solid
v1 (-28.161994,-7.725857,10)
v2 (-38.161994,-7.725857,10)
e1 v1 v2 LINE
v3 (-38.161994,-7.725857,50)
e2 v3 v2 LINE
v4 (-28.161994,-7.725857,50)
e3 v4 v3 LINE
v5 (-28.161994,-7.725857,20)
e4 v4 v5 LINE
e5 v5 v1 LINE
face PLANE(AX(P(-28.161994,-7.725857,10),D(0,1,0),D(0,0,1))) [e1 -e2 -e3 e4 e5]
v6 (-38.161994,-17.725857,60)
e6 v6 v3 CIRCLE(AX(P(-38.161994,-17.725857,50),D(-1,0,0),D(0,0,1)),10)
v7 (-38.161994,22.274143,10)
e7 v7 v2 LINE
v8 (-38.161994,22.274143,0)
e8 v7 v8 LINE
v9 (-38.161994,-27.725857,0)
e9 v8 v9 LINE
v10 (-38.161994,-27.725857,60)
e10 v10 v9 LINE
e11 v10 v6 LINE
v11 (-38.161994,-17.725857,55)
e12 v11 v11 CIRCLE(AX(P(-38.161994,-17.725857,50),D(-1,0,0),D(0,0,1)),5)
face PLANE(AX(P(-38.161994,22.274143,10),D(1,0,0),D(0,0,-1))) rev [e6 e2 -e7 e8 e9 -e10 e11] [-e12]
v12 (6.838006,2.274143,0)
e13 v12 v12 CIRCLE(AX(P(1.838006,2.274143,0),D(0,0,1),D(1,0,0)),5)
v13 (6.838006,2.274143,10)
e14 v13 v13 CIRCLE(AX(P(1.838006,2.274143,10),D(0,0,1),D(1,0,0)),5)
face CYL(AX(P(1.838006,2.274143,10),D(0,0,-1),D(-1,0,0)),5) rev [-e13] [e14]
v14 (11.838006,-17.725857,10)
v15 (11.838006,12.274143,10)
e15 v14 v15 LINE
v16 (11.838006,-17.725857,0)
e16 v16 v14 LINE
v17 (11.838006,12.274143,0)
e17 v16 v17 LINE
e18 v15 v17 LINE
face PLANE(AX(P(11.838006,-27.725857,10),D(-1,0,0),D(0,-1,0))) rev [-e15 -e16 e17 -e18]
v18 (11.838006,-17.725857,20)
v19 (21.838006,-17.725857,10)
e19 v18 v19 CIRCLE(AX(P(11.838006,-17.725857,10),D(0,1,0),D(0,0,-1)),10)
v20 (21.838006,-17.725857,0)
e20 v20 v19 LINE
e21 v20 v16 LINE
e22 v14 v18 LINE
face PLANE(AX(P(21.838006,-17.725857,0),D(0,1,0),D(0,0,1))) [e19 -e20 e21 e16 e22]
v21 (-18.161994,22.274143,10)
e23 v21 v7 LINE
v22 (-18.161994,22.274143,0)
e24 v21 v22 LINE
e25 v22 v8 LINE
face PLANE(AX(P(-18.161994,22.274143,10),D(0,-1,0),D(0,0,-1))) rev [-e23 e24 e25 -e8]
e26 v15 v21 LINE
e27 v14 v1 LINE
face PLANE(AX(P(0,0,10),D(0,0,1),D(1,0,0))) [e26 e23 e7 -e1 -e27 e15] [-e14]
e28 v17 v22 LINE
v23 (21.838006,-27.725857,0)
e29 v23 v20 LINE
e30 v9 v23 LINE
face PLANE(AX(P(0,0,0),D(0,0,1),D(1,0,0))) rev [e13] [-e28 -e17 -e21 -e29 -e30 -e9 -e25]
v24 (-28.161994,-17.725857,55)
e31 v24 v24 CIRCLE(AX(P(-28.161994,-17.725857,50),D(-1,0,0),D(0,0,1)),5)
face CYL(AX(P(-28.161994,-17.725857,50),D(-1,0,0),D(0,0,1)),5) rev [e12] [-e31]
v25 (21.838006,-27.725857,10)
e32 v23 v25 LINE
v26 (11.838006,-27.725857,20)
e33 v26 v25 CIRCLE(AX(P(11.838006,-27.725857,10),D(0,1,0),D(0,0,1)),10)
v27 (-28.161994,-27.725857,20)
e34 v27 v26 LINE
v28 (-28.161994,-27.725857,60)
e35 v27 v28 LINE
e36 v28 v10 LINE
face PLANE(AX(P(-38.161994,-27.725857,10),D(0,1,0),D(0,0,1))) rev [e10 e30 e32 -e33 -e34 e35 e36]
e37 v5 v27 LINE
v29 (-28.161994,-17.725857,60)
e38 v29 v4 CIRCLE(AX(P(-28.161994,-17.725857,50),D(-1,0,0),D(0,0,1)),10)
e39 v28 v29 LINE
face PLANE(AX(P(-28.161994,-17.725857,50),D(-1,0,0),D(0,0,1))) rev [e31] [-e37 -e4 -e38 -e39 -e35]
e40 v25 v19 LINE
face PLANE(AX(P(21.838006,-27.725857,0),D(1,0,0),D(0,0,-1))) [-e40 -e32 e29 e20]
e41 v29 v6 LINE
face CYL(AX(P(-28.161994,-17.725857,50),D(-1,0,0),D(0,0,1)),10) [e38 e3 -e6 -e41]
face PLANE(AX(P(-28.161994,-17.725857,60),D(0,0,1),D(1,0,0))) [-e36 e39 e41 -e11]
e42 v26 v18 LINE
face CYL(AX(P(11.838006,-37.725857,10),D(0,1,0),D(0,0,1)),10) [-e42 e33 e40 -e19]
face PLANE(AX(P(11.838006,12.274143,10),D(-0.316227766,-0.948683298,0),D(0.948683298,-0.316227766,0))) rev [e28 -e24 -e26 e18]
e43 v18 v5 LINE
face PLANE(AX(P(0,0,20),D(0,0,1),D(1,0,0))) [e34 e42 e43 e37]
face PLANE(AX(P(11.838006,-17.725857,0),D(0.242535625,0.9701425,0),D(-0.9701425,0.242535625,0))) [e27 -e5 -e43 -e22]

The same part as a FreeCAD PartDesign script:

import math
import FreeCAD as App
import Part
import Sketcher
from FreeCAD import Vector


def add_polygon(sketch, points):
    """Adds a closed chain of lines whose ends are joined by coincident constraints."""
    first, n = sketch.GeometryCount, len(points)
    for a, b in zip(points, points[1:] + points[:1]):
        sketch.addGeometry(Part.LineSegment(App.Vector(*a, 0), App.Vector(*b, 0)), False)
    for i in range(n):
        sketch.addConstraint(Sketcher.Constraint("Coincident", first + i, 2, first + (i + 1) % n, 1))

doc = App.newDocument("Part")
params = doc.addObject("Spreadsheet::Sheet", "Params")
for row, (alias, value) in enumerate([
    ("sketch1_diameter", "10 mm"),
    ("sketch1_width", "50 mm"),
    ("sketch1_width2", "20 mm"),
    ("sketch1_height", "40 mm"),
    ("pad1_length", "10 mm"),
    ("sketch2_diameter", "10 mm"),
    ("sketch2_radius", "10 mm"),
    ("sketch2_width", "20 mm"),
    ("sketch2_height", "40 mm"),
    ("pad2_length", "10 mm"),
    ("sketch3_width", "50 mm"),
    ("sketch3_width2", "10 mm"),
    ("sketch3_height", "20 mm"),
    ("pad3_length", "20 mm"),
    ("sketch4_radius", "10 mm"),
    ("sketch4_height", "10 mm"),
    ("pocket1_length", "20 mm"),
], start=1):
    params.set(f"A{row}", alias)
    params.set(f"B{row}", "=" + value)
    params.setAlias(f"B{row}", alias)

body = doc.addObject("PartDesign::Body", "Body")

# Sketch on XY plane
sketch1 = doc.addObject("Sketcher::SketchObject", "Sketch")
body.addObject(sketch1)
sketch1.AttachmentSupport = (doc.XY_Plane, [""])
sketch1.MapMode = "FlatFace"
add_polygon(sketch1, [(-38, 22), (-38, -28), (12, -28), (12, 12), (-18, 22)])  # lines 0-4
sketch1.addGeometry(Part.Circle(Vector(2, 2, 0), Vector(0, 0, 1), 5), False)  # 5
sketch1.addConstraint(Sketcher.Constraint("Vertical", 0))
sketch1.addConstraint(Sketcher.Constraint("Horizontal", 1))
sketch1.addConstraint(Sketcher.Constraint("Vertical", 2))
sketch1.addConstraint(Sketcher.Constraint("Horizontal", 4))
sketch1.addConstraint(Sketcher.Constraint("Equal", 1, 0))
sketch1.addConstraint(Sketcher.Constraint("Diameter", 5, 10.0))
sketch1.addConstraint(Sketcher.Constraint("DistanceX", 1, 1, 1, 2, 50.0))
sketch1.addConstraint(Sketcher.Constraint("DistanceX", 4, 2, 4, 1, 20.0))
sketch1.addConstraint(Sketcher.Constraint("DistanceY", 2, 1, 2, 2, 40.0))
sketch1.addConstraint(Sketcher.Constraint("DistanceX", 0, 2, 5, 3, 40.0))
sketch1.addConstraint(Sketcher.Constraint("DistanceY", 0, 2, 5, 3, 30.0))
sketch1.addConstraint(Sketcher.Constraint("DistanceX", -1, 1, 5, 3, 1.838006))
sketch1.addConstraint(Sketcher.Constraint("DistanceY", -1, 1, 5, 3, 2.274143))
sketch1.setExpression("Constraints[10]", "Params.sketch1_diameter")
sketch1.setExpression("Constraints[11]", "Params.sketch1_width")
sketch1.setExpression("Constraints[12]", "Params.sketch1_width2")
sketch1.setExpression("Constraints[13]", "Params.sketch1_height")
pad1 = doc.addObject("PartDesign::Pad", "Pad")
body.addObject(pad1)
pad1.Profile = sketch1
pad1.setExpression("Length", "Params.pad1_length")

# Sketch on YZ plane
sketch2 = doc.addObject("Sketcher::SketchObject", "Sketch001")
body.addObject(sketch2)
sketch2.AttachmentSupport = (doc.YZ_Plane, [""])
sketch2.MapMode = "FlatFace"
sketch2.AttachmentOffset = App.Placement(Vector(0, 0, -38.161994), App.Rotation())
sketch2.addGeometry(Part.LineSegment(Vector(-8, 50, 0), Vector(-8, 10, 0)), False)
sketch2.addGeometry(Part.LineSegment(Vector(-8, 10, 0), Vector(-28, 10, 0)), False)
sketch2.addGeometry(Part.LineSegment(Vector(-28, 10, 0), Vector(-28, 60, 0)), False)
sketch2.addGeometry(Part.LineSegment(Vector(-28, 60, 0), Vector(-18, 60, 0)), False)
sketch2.addGeometry(Part.ArcOfCircle(Part.Circle(Vector(-18, 50, 0), Vector(0, 0, 1), 10), math.radians(0), math.radians(90)), False)
sketch2.addGeometry(Part.Circle(Vector(-18, 50, 0), Vector(0, 0, 1), 5), False)
sketch2.addConstraint(Sketcher.Constraint("Coincident", 0, 2, 1, 1))
sketch2.addConstraint(Sketcher.Constraint("Coincident", 1, 2, 2, 1))
sketch2.addConstraint(Sketcher.Constraint("Coincident", 2, 2, 3, 1))
sketch2.addConstraint(Sketcher.Constraint("Tangent", 3, 2, 4, 2))
sketch2.addConstraint(Sketcher.Constraint("Tangent", 4, 1, 0, 1))
sketch2.addConstraint(Sketcher.Constraint("Vertical", 0))
sketch2.addConstraint(Sketcher.Constraint("Horizontal", 1))
sketch2.addConstraint(Sketcher.Constraint("Vertical", 2))
sketch2.addConstraint(Sketcher.Constraint("Horizontal", 3))
sketch2.addConstraint(Sketcher.Constraint("Coincident", 5, 3, 4, 3))
sketch2.addConstraint(Sketcher.Constraint("Diameter", 5, 10.0))
sketch2.addConstraint(Sketcher.Constraint("Radius", 4, 10.0))
sketch2.addConstraint(Sketcher.Constraint("DistanceX", 1, 2, 1, 1, 20.0))
sketch2.addConstraint(Sketcher.Constraint("DistanceY", 0, 2, 0, 1, 40.0))
sketch2.addConstraint(Sketcher.Constraint("DistanceY", -1, 1, 4, 3, 50.0))
sketch2.addConstraint(Sketcher.Constraint("DistanceX", 4, 3, -1, 1, 17.725857))
sketch2.setExpression("Constraints[10]", "Params.sketch2_diameter")
sketch2.setExpression("Constraints[11]", "Params.sketch2_radius")
sketch2.setExpression("Constraints[12]", "Params.sketch2_width")
sketch2.setExpression("Constraints[13]", "Params.sketch2_height")
pad2 = doc.addObject("PartDesign::Pad", "Pad001")
body.addObject(pad2)
pad2.Profile = sketch2
pad2.setExpression("Length", "Params.pad2_length")

# Sketch on XY plane
sketch3 = doc.addObject("Sketcher::SketchObject", "Sketch002")
body.addObject(sketch3)
sketch3.AttachmentSupport = (doc.XY_Plane, [""])
sketch3.MapMode = "FlatFace"
sketch3.AttachmentOffset = App.Placement(Vector(0, 0, 10), App.Rotation())
add_polygon(sketch3, [(-28, -8), (-28, -28), (22, -28), (22, -18), (12, -18)])  # lines 0-4
sketch3.addConstraint(Sketcher.Constraint("Vertical", 0))
sketch3.addConstraint(Sketcher.Constraint("Horizontal", 1))
sketch3.addConstraint(Sketcher.Constraint("Vertical", 2))
sketch3.addConstraint(Sketcher.Constraint("Horizontal", 3))
sketch3.addConstraint(Sketcher.Constraint("Equal", 3, 2))
sketch3.addConstraint(Sketcher.Constraint("DistanceX", 1, 1, 1, 2, 50.0))
sketch3.addConstraint(Sketcher.Constraint("DistanceX", 3, 2, 3, 1, 10.0))
sketch3.addConstraint(Sketcher.Constraint("DistanceY", 0, 2, 0, 1, 20.0))
sketch3.addConstraint(Sketcher.Constraint("DistanceX", 0, 2, -1, 1, 28.161994))
sketch3.addConstraint(Sketcher.Constraint("DistanceY", 0, 2, -1, 1, 27.725857))
sketch3.setExpression("Constraints[10]", "Params.sketch3_width")
sketch3.setExpression("Constraints[11]", "Params.sketch3_width2")
sketch3.setExpression("Constraints[12]", "Params.sketch3_height")
pad3 = doc.addObject("PartDesign::Pad", "Pad002")
body.addObject(pad3)
pad3.Profile = sketch3
pad3.setExpression("Length", "Params.pad3_length")
pad3.Midplane = True

# Sketch on XZ plane
sketch4 = doc.addObject("Sketcher::SketchObject", "Sketch003")
body.addObject(sketch4)
sketch4.AttachmentSupport = (doc.XZ_Plane, [""])
sketch4.MapMode = "FlatFace"
sketch4.AttachmentOffset = App.Placement(Vector(0, 0, 17.725857), App.Rotation())
sketch4.addGeometry(Part.LineSegment(Vector(-49, 63, 0), Vector(-49, 71, 0)), False)
sketch4.addGeometry(Part.LineSegment(Vector(-49, 71, 0), Vector(33, 71, 0)), False)
sketch4.addGeometry(Part.LineSegment(Vector(33, 71, 0), Vector(33, -11, 0)), False)
sketch4.addGeometry(Part.LineSegment(Vector(33, -11, 0), Vector(-49, -11, 0)), False)
sketch4.addGeometry(Part.LineSegment(Vector(-49, -11, 0), Vector(-49, 0, 0)), False)
sketch4.addGeometry(Part.LineSegment(Vector(-49, 0, 0), Vector(22, 0, 0)), False)
sketch4.addGeometry(Part.LineSegment(Vector(22, 0, 0), Vector(22, 10, 0)), False)
sketch4.addGeometry(Part.ArcOfCircle(Part.Circle(Vector(12, 10, 0), Vector(0, 0, 1), 10), math.radians(0), math.radians(90)), False)
sketch4.addGeometry(Part.LineSegment(Vector(12, 20, 0), Vector(4, 20, 0)), False)
sketch4.addGeometry(Part.LineSegment(Vector(4, 20, 0), Vector(4, 63, 0)), False)
sketch4.addGeometry(Part.LineSegment(Vector(4, 63, 0), Vector(-49, 63, 0)), False)
sketch4.addConstraint(Sketcher.Constraint("Coincident", 0, 2, 1, 1))
sketch4.addConstraint(Sketcher.Constraint("Coincident", 1, 2, 2, 1))
sketch4.addConstraint(Sketcher.Constraint("Coincident", 2, 2, 3, 1))
sketch4.addConstraint(Sketcher.Constraint("Coincident", 3, 2, 4, 1))
sketch4.addConstraint(Sketcher.Constraint("Coincident", 4, 2, 5, 1))
sketch4.addConstraint(Sketcher.Constraint("Coincident", 5, 2, 6, 1))
sketch4.addConstraint(Sketcher.Constraint("Tangent", 6, 2, 7, 1))
sketch4.addConstraint(Sketcher.Constraint("Tangent", 7, 2, 8, 1))
sketch4.addConstraint(Sketcher.Constraint("Coincident", 8, 2, 9, 1))
sketch4.addConstraint(Sketcher.Constraint("Coincident", 9, 2, 10, 1))
sketch4.addConstraint(Sketcher.Constraint("Coincident", 10, 2, 0, 1))
sketch4.addConstraint(Sketcher.Constraint("Vertical", 0))
sketch4.addConstraint(Sketcher.Constraint("Horizontal", 1))
sketch4.addConstraint(Sketcher.Constraint("Vertical", 2))
sketch4.addConstraint(Sketcher.Constraint("Horizontal", 3))
sketch4.addConstraint(Sketcher.Constraint("Vertical", 4))
sketch4.addConstraint(Sketcher.Constraint("Horizontal", 5))
sketch4.addConstraint(Sketcher.Constraint("Vertical", 6))
sketch4.addConstraint(Sketcher.Constraint("Horizontal", 8))
sketch4.addConstraint(Sketcher.Constraint("Vertical", 9))
sketch4.addConstraint(Sketcher.Constraint("Horizontal", 10))
sketch4.addConstraint(Sketcher.Constraint("PointOnObject", 4, 2, -1))
sketch4.addConstraint(Sketcher.Constraint("Vertical", 0, 2, 3, 2))
sketch4.addConstraint(Sketcher.Constraint("Equal", 3, 2))
sketch4.addConstraint(Sketcher.Constraint("Radius", 7, 10.0))
sketch4.addConstraint(Sketcher.Constraint("DistanceY", 6, 1, 6, 2, 10.0))
sketch4.addConstraint(Sketcher.Constraint("DistanceX", 1, 1, 1, 2, 81.698))
sketch4.addConstraint(Sketcher.Constraint("DistanceY", 4, 1, 4, 2, 10.849))
sketch4.addConstraint(Sketcher.Constraint("DistanceX", 0, 2, -1, 1, 49.011))
sketch4.addConstraint(Sketcher.Constraint("DistanceX", 10, 2, 10, 1, 53.47334))
sketch4.addConstraint(Sketcher.Constraint("DistanceX", 5, 1, 5, 2, 70.849006))
sketch4.addConstraint(Sketcher.Constraint("DistanceY", 0, 1, 0, 2, 7.764308))
sketch4.setExpression("Constraints[24]", "Params.sketch4_radius")
sketch4.setExpression("Constraints[25]", "Params.sketch4_height")
pocket1 = doc.addObject("PartDesign::Pocket", "Pocket")
body.addObject(pocket1)
pocket1.Profile = sketch4
pocket1.setExpression("Length", "Params.pocket1_length")
pocket1.Reversed = True

doc.recompute()
